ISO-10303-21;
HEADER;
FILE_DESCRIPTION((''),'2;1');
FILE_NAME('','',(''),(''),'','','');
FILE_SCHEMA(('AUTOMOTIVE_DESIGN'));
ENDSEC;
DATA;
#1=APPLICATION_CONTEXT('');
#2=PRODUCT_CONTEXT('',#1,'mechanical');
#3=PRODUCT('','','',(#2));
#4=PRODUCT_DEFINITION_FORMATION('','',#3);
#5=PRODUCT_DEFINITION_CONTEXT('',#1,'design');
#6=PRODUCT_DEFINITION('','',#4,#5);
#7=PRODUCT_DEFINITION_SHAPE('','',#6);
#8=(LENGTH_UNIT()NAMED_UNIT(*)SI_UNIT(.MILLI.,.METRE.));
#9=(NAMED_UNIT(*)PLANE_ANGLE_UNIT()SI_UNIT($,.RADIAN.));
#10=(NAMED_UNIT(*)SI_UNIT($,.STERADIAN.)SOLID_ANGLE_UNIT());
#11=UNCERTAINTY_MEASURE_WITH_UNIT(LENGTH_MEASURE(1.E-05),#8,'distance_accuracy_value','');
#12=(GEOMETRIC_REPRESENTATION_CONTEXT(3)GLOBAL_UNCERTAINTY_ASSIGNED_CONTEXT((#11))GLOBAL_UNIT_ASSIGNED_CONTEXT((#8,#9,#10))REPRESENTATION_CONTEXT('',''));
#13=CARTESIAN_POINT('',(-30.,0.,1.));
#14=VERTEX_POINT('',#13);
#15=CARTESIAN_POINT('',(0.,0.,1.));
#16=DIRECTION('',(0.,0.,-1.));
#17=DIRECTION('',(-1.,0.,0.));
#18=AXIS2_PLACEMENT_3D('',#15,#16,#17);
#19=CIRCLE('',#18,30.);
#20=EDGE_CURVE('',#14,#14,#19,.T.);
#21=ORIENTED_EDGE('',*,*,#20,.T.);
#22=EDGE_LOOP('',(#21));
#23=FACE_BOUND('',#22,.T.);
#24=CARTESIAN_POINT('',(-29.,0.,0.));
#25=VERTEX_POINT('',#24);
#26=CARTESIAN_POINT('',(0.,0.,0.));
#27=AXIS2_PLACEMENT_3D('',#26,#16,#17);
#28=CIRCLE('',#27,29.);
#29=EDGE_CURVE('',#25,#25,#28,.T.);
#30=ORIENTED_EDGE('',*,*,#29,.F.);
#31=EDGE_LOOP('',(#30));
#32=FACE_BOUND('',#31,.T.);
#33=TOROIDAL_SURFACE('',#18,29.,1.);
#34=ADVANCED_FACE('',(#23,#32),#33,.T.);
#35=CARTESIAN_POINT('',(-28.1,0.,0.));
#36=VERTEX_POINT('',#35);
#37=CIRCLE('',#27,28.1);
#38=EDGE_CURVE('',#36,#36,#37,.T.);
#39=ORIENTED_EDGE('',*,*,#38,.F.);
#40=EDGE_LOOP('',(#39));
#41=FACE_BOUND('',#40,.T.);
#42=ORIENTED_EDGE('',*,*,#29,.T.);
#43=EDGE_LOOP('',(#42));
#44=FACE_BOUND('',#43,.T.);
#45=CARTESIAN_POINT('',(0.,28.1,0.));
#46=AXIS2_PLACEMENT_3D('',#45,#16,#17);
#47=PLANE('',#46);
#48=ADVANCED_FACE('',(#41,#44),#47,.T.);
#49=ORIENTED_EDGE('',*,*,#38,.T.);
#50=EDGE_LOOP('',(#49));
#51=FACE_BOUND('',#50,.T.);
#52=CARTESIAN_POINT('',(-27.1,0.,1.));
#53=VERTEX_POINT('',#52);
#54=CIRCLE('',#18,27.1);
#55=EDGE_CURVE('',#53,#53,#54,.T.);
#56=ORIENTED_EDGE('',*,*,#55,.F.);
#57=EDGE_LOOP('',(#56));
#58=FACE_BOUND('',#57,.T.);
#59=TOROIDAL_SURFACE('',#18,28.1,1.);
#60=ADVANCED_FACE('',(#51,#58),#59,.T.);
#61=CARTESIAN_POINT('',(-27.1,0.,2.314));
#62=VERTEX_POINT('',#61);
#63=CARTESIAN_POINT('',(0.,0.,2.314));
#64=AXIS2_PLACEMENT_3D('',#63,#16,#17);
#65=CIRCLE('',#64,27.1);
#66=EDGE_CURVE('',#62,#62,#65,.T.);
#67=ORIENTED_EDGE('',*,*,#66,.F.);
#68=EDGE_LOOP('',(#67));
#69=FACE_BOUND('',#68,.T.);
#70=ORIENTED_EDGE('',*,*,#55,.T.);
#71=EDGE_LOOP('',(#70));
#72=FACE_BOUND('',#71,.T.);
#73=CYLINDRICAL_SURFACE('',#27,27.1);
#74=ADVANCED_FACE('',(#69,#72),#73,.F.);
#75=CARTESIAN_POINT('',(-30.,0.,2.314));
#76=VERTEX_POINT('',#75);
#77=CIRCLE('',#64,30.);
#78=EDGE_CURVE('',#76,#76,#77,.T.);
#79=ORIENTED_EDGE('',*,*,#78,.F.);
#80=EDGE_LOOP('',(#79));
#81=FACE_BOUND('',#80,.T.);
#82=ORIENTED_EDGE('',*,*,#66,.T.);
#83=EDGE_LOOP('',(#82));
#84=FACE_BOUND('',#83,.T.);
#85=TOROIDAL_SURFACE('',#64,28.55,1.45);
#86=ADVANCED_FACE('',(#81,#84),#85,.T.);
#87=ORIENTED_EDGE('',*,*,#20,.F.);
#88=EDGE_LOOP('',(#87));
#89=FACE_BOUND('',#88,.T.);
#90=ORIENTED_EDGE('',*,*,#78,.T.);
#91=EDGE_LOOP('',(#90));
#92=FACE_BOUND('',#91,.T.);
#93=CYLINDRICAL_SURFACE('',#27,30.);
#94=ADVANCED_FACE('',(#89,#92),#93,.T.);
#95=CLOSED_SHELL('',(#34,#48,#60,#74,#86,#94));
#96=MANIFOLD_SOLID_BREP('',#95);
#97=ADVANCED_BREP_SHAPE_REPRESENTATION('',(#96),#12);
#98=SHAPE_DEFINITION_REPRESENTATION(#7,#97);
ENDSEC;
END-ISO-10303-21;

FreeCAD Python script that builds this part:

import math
import FreeCAD as App
import Part
import Sketcher

V = App.Vector
Q = App.Units.Quantity

doc = App.newDocument("Part")
body = doc.addObject("PartDesign::Body", "Body")

# Sketch on YZ plane
sketch1 = doc.addObject("Sketcher::SketchObject", "Sketch")
body.addObject(sketch1)
sketch1.AttachmentSupport = (doc.YZ_Plane, [""])
sketch1.MapMode = "FlatFace"
sketch1.addGeometry(Part.LineSegment(V(27.1, 2.3, 0), V(27.1, 1, 0)), False)
sketch1.addGeometry(Part.ArcOfCircle(Part.Circle(V(28.1, 1, 0), V(0, 0, 1), 1), math.radians(-180), math.radians(-90)), False)
sketch1.addGeometry(Part.LineSegment(V(28.1, 0, 0), V(29, 0, 0)), False)
sketch1.addGeometry(Part.ArcOfCircle(Part.Circle(V(29, 1, 0), V(0, 0, 1), 1), math.radians(-90), math.radians(0)), False)
sketch1.addGeometry(Part.LineSegment(V(30, 1, 0), V(30, 2.3, 0)), False)
sketch1.addGeometry(Part.ArcOfCircle(Part.Circle(V(28.6, 2.3, 0), V(0, 0, 1), 1.4), math.radians(0), math.radians(180)), False)
sketch1.addConstraint(Sketcher.Constraint("Tangent", 0, 2, 1, 1))
sketch1.addConstraint(Sketcher.Constraint("Tangent", 1, 2, 2, 1))
sketch1.addConstraint(Sketcher.Constraint("Tangent", 2, 2, 3, 1))
sketch1.addConstraint(Sketcher.Constraint("Tangent", 3, 2, 4, 1))
sketch1.addConstraint(Sketcher.Constraint("Tangent", 4, 2, 5, 1))
sketch1.addConstraint(Sketcher.Constraint("Tangent", 5, 2, 0, 1))
sketch1.addConstraint(Sketcher.Constraint("Vertical", 0))
sketch1.addConstraint(Sketcher.Constraint("Horizontal", 2))
sketch1.addConstraint(Sketcher.Constraint("Vertical", 4))
sketch1.addConstraint(Sketcher.Constraint("Equal", 1, 3))
sketch1.addConstraint(Sketcher.Constraint("PointOnObject", 1, 2, -1))
sketch1.addConstraint(Sketcher.Constraint("Radius", 1, Q("1 mm")))
sketch1.addConstraint(Sketcher.Constraint("Radius", 5, Q("1.45 mm")))
sketch1.addConstraint(Sketcher.Constraint("DistanceX", -1, 1, 3, 3, Q("29 mm")))
sketch1.addConstraint(Sketcher.Constraint("DistanceY", 0, 2, 0, 1, Q("1.314 mm")))
revolution = doc.addObject("PartDesign::Revolution", "Revolution")
body.addObject(revolution)
revolution.Profile = sketch1
revolution.ReferenceAxis = (sketch1, ["V_Axis"])
revolution.Angle = 360

doc.recompute()
